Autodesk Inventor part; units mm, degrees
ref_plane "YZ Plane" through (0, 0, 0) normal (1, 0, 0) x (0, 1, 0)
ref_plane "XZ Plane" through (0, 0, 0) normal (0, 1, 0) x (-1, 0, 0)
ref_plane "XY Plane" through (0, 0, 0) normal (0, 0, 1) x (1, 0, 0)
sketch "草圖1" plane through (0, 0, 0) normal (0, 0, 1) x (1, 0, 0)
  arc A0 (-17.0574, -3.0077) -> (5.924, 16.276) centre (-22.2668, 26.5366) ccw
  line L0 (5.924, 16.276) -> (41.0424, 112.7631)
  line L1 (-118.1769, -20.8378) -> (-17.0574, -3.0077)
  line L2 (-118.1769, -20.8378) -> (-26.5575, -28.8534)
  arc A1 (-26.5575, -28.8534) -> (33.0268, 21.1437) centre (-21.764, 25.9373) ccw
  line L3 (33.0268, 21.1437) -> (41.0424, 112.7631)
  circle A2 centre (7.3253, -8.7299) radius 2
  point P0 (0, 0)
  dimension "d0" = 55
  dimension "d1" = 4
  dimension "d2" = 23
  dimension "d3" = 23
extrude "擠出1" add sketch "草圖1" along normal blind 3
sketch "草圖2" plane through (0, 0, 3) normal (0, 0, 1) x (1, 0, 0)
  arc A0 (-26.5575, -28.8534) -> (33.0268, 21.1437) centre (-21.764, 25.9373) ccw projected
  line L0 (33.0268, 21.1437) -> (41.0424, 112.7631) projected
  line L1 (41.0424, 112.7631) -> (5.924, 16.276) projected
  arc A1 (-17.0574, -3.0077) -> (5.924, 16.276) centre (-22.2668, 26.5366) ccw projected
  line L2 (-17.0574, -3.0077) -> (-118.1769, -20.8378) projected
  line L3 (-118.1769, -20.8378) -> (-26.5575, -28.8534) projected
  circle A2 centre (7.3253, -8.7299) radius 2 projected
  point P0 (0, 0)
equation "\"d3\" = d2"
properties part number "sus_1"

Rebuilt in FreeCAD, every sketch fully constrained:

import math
import FreeCAD as App
import Part
import Sketcher

V = App.Vector
Q = App.Units.Quantity

doc = App.newDocument("Part")
params = doc.addObject("Spreadsheet::Sheet", "Params")
for row, (alias, value) in enumerate([
    ("sketch1_diameter", "4 mm"),
    ("sketch1_radius", "55 mm"),
    ("sketch1_radius2", "30 mm"),
    ("pad1_length", "3 mm"),
], start=1):
    params.set(f"A{row}", alias)
    params.set(f"B{row}", "=" + value)
    params.setAlias(f"B{row}", alias)

body = doc.addObject("PartDesign::Body", "Body")

sketch1 = body.newObject("Sketcher::SketchObject", "Sketch")
sketch1.AttachmentSupport = (doc.getObject("XY_Plane"), [""])
sketch1.MapMode = "FlatFace"
sketch1.addGeometry(Part.ArcOfCircle(Part.Circle(V(-22.2668, 26.5366, 0), V(0, 0, 1), 30.000059), math.radians(-80.000108), math.radians(-19.999978)), False)
sketch1.addGeometry(Part.LineSegment(V(-17.0574, -3.0077, 0), V(-118.1769, -20.8378, 0)), False)
sketch1.addGeometry(Part.LineSegment(V(-118.1769, -20.8378, 0), V(-26.5575, -28.8534, 0)), False)
sketch1.addGeometry(Part.ArcOfCircle(Part.Circle(V(-21.764, 25.9373, 0), V(0, 0, 1), 54.999986), math.radians(-94.999932), math.radians(-5.000027)), False)
sketch1.addGeometry(Part.LineSegment(V(33.0268, 21.1437, 0), V(41.0424, 112.7631, 0)), False)
sketch1.addGeometry(Part.LineSegment(V(41.0424, 112.7631, 0), V(5.924, 16.276, 0)), False)
sketch1.addGeometry(Part.Circle(V(7.3253, -8.7299, 0), V(0, 0, 1), 2), False)
sketch1.addConstraint(Sketcher.Constraint("Tangent", 0, 1, 1, 1))
sketch1.addConstraint(Sketcher.Constraint("Coincident", 1, 2, 2, 1))
sketch1.addConstraint(Sketcher.Constraint("Tangent", 2, 2, 3, 1))
sketch1.addConstraint(Sketcher.Constraint("Tangent", 3, 2, 4, 1))
sketch1.addConstraint(Sketcher.Constraint("Coincident", 4, 2, 5, 1))
sketch1.addConstraint(Sketcher.Constraint("Tangent", 5, 2, 0, 2))
sketch1.addConstraint(Sketcher.Constraint("Perpendicular", 2, 4))
sketch1.addConstraint(Sketcher.Constraint("Equal", 2, 4))
sketch1.addConstraint(Sketcher.Constraint("Equal", 1, 5))
sketch1.addConstraint(Sketcher.Constraint("Diameter", 6, Q("4 mm")))
sketch1.addConstraint(Sketcher.Constraint("Radius", 3, Q("55 mm")))
sketch1.addConstraint(Sketcher.Constraint("Radius", 0, Q("30 mm")))
sketch1.addConstraint(Sketcher.Constraint("Angle", 1, Q("-170 deg")))
sketch1.addConstraint(Sketcher.Constraint("Angle", 2, Q("-5 deg")))
sketch1.addConstraint(Sketcher.Constraint("DistanceX", 2, 2, 0, 1, Q("9.5 mm")))
sketch1.addConstraint(Sketcher.Constraint("DistanceY", 6, 3, -1, 1, Q("8.73 mm")))
sketch1.addConstraint(Sketcher.Constraint("DistanceX", 3, 3, -1, 1, Q("21.764 mm")))
sketch1.addConstraint(Sketcher.Constraint("DistanceY", -1, 1, 4, 2, Q("112.763 mm")))
sketch1.addConstraint(Sketcher.Constraint("DistanceX", 0, 3, 6, 3, Q("29.592 mm")))
sketch1.setExpression("Constraints[9]", "Params.sketch1_diameter")
sketch1.setExpression("Constraints[10]", "Params.sketch1_radius")
sketch1.setExpression("Constraints[11]", "Params.sketch1_radius2")
pad1 = body.newObject("PartDesign::Pad", "Pad")
pad1.Profile = sketch1
pad1.setExpression("Length", "Params.pad1_length")

doc.recompute()
